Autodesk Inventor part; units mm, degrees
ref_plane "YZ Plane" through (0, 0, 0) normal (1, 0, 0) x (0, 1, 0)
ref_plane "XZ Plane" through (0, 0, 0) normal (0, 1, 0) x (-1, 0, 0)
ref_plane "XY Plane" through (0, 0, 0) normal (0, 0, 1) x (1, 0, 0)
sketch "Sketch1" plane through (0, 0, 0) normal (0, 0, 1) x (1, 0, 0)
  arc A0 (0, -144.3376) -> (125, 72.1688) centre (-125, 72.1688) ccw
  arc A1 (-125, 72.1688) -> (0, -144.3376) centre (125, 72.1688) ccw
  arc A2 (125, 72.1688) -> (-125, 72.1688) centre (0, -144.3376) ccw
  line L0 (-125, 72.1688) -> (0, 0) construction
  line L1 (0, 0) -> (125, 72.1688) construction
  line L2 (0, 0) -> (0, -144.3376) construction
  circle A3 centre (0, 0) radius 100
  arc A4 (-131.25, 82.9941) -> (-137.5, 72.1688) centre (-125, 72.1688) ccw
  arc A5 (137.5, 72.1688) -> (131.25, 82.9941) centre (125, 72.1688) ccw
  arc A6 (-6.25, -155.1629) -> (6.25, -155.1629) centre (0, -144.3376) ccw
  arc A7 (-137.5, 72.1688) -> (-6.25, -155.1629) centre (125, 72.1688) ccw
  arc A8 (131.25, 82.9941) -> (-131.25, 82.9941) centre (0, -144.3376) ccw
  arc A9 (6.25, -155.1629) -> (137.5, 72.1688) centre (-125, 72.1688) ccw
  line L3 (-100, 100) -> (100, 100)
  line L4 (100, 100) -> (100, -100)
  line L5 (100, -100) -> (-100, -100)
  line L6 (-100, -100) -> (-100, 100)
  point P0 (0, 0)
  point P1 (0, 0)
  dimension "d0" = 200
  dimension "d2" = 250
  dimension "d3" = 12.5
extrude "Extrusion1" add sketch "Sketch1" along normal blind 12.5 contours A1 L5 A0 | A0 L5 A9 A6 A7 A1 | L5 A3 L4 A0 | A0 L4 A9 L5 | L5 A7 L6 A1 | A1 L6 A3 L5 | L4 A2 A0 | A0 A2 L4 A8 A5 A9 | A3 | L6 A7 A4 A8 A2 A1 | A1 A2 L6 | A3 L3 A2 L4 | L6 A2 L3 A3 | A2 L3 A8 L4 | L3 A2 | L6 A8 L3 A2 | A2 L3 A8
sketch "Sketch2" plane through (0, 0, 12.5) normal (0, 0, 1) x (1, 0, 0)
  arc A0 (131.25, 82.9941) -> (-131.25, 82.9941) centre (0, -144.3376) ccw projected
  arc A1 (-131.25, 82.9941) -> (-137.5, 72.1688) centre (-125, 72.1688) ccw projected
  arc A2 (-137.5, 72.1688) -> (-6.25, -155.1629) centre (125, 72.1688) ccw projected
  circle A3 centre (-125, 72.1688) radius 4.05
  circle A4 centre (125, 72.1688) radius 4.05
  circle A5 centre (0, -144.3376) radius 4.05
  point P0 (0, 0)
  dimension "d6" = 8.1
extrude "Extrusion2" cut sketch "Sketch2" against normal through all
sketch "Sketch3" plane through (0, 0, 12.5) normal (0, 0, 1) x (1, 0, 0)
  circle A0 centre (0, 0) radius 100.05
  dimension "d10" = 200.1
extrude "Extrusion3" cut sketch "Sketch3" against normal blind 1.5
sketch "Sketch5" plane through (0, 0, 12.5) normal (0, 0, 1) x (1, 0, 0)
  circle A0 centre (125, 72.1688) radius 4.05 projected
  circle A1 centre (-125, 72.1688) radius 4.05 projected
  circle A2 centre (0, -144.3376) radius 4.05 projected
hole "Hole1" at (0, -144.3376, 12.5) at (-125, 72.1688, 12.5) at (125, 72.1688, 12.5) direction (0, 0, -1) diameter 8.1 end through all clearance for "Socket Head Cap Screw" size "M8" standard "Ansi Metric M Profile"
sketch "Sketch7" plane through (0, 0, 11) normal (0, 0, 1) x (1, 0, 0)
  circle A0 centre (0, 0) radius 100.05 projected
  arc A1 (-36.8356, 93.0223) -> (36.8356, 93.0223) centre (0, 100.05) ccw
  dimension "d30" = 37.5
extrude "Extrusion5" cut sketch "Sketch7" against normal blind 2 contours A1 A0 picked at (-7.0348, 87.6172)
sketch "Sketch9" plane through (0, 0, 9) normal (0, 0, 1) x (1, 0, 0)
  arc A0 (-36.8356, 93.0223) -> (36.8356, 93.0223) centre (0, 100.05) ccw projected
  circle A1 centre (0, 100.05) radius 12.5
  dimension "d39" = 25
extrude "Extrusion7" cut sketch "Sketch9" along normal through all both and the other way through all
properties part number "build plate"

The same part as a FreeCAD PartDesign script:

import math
import FreeCAD as App
import Part
import Sketcher
Q = App.Units.Quantity

doc = App.newDocument("Part")
body = doc.addObject("PartDesign::Body", "Body")

sketch1 = body.newObject("Sketcher::SketchObject", "Sketch")
sketch1.AttachmentSupport = (doc.getObject("XY_Plane"), [""])
sketch1.MapMode = "FlatFace"
sketch1.addGeometry([
    Part.ArcOfCircle(Part.Circle(App.Vector(-125, 72, 0), App.Vector(0, 0, 1), 263), math.radians(-60), math.radians(0)),
    Part.ArcOfCircle(Part.Circle(App.Vector(125, 72, 0), App.Vector(0, 0, 1), 12), math.radians(0), math.radians(60)),
    Part.ArcOfCircle(Part.Circle(App.Vector(0, -144, 0), App.Vector(0, 0, 1), 263), math.radians(60), math.radians(120)),
    Part.ArcOfCircle(Part.Circle(App.Vector(-125, 72, 0), App.Vector(0, 0, 1), 12), math.radians(120), math.radians(180)),
    Part.ArcOfCircle(Part.Circle(App.Vector(125, 72, 0), App.Vector(0, 0, 1), 262), math.radians(180), math.radians(240)),
    Part.ArcOfCircle(Part.Circle(App.Vector(0, -144, 0), App.Vector(0, 0, 1), 12), math.radians(-120), math.radians(-60)),
], False)
sketch1.addConstraint([
    Sketcher.Constraint("Tangent", 0, 2, 1, 1),
    Sketcher.Constraint("Tangent", 1, 2, 2, 1),
    Sketcher.Constraint("Tangent", 2, 2, 3, 1),
    Sketcher.Constraint("Tangent", 3, 2, 4, 1),
    Sketcher.Constraint("Tangent", 4, 2, 5, 1),
    Sketcher.Constraint("Tangent", 5, 2, 0, 1),
    Sketcher.Constraint("Coincident", 3, 3, 0, 3),
    Sketcher.Constraint("Coincident", 4, 3, 1, 3),
    Sketcher.Constraint("Equal", 0, 2),
    Sketcher.Constraint("Equal", 1, 3),
    Sketcher.Constraint("Equal", 3, 5),
    Sketcher.Constraint("Symmetric", 0, 3, 1, 3, -2),
    Sketcher.Constraint("Radius", 1, Q("12.5 mm")),
    Sketcher.Constraint("DistanceX", 0, 3, 1, 3, Q("250 mm")),
    Sketcher.Constraint("DistanceY", -1, 1, 1, 2, Q("82.994 mm")),
])
pad1 = body.newObject("PartDesign::Pad", "Pad")
pad1.Profile = sketch1
pad1.Length = 12.5

sketch2 = body.newObject("Sketcher::SketchObject", "Sketch001")
sketch2.AttachmentSupport = (doc.getObject("XY_Plane"), [""])
sketch2.MapMode = "FlatFace"
sketch2.AttachmentOffset = App.Placement(App.Vector(0, 0, 12.5), App.Rotation())
sketch2.addGeometry([
    Part.Circle(App.Vector(-125, 72.2, 0), App.Vector(0, 0, 1), 4),
    Part.Circle(App.Vector(125, 72.2, 0), App.Vector(0, 0, 1), 4),
    Part.Circle(App.Vector(0, -144.3, 0), App.Vector(0, 0, 1), 4),
], False)
sketch2.addConstraint([
    Sketcher.Constraint("Equal", 0, 1),
    Sketcher.Constraint("Equal", 1, 2),
    Sketcher.Constraint("Symmetric", 0, 3, 1, 3, -2),
    Sketcher.Constraint("PointOnObject", 2, 3, -2),
    Sketcher.Constraint("Diameter", 0, Q("8.1 mm")),
    Sketcher.Constraint("DistanceX", 0, 3, -1, 1, Q("125 mm")),
    Sketcher.Constraint("DistanceY", -1, 1, 0, 3, Q("72.1688 mm")),
    Sketcher.Constraint("DistanceY", 2, 3, -1, 1, Q("144.3376 mm")),
])
pocket1 = body.newObject("PartDesign::Pocket", "Pocket")
pocket1.Profile = sketch2
pocket1.Type = "ThroughAll"

sketch3 = body.newObject("Sketcher::SketchObject", "Sketch002")
sketch3.AttachmentSupport = (doc.getObject("XY_Plane"), [""])
sketch3.MapMode = "FlatFace"
sketch3.AttachmentOffset = App.Placement(App.Vector(0, 0, 12.5), App.Rotation())
sketch3.addGeometry(Part.Circle(App.Vector(0, 0, 0), App.Vector(0, 0, 1), 100), False)
sketch3.addConstraint([
    Sketcher.Constraint("Coincident", 0, 3, -1, 1),
    Sketcher.Constraint("Diameter", 0, Q("200.1 mm")),
])
pocket2 = body.newObject("PartDesign::Pocket", "Pocket001")
pocket2.Profile = sketch3
pocket2.Length = 1.5

sketch4 = body.newObject("Sketcher::SketchObject", "Sketch003")
sketch4.AttachmentSupport = (doc.getObject("XY_Plane"), [""])
sketch4.MapMode = "FlatFace"
sketch4.AttachmentOffset = App.Placement(App.Vector(0, 0, 12.5), App.Rotation())
sketch4.addGeometry([
    Part.Circle(App.Vector(0, -144.3, 0), App.Vector(0, 0, 1), 4),
    Part.Circle(App.Vector(-125, 72.2, 0), App.Vector(0, 0, 1), 4),
    Part.Circle(App.Vector(125, 72.2, 0), App.Vector(0, 0, 1), 4),
], False)
sketch4.addConstraint([
    Sketcher.Constraint("Equal", 0, 1),
    Sketcher.Constraint("Equal", 1, 2),
    Sketcher.Constraint("Symmetric", 1, 3, 2, 3, -2),
    Sketcher.Constraint("PointOnObject", 0, 3, -2),
    Sketcher.Constraint("Diameter", 0, Q("8.1 mm")),
    Sketcher.Constraint("DistanceX", 1, 3, -1, 1, Q("125 mm")),
    Sketcher.Constraint("DistanceY", 0, 3, -1, 1, Q("144.3376 mm")),
    Sketcher.Constraint("DistanceY", -1, 1, 1, 3, Q("72.1688 mm")),
])
doc.recompute()
hole = body.newObject("PartDesign::Hole", "Hole")
hole.Profile = sketch4
hole.ThreadType = "None"
hole.Diameter = 8.1
hole.DepthType = "ThroughAll"

sketch5 = body.newObject("Sketcher::SketchObject", "Sketch004")
sketch5.AttachmentSupport = (doc.getObject("XY_Plane"), [""])
sketch5.MapMode = "FlatFace"
sketch5.AttachmentOffset = App.Placement(App.Vector(0, 0, 11), App.Rotation())
sketch5.addGeometry([
    Part.ArcOfCircle(Part.Circle(App.Vector(0, 100, 0), App.Vector(0, 0, 1), 37), math.radians(-169), math.radians(-11)),
    Part.ArcOfCircle(Part.Circle(App.Vector(0, 0, 0), App.Vector(0, 0, 1), 100), math.radians(68), math.radians(112)),
], False)
sketch5.addConstraint([
    Sketcher.Constraint("Coincident", 0, 1, 1, 2),
    Sketcher.Constraint("Coincident", 1, 1, 0, 2),
    Sketcher.Constraint("Coincident", 1, 3, -1, 1),
    Sketcher.Constraint("PointOnObject", 0, 3, -2),
    Sketcher.Constraint("Radius", 0, Q("37.5 mm")),
    Sketcher.Constraint("Radius", 1, Q("100.05 mm")),
    Sketcher.Constraint("DistanceY", -1, 1, 0, 3, Q("100.05 mm")),
])
pocket3 = body.newObject("PartDesign::Pocket", "Pocket002")
pocket3.Profile = sketch5
pocket3.Length = 2

sketch6 = body.newObject("Sketcher::SketchObject", "Sketch005")
sketch6.AttachmentSupport = (doc.getObject("XY_Plane"), [""])
sketch6.MapMode = "FlatFace"
sketch6.AttachmentOffset = App.Placement(App.Vector(0, 0, 9), App.Rotation())
sketch6.addGeometry(Part.Circle(App.Vector(0, 100, 0), App.Vector(0, 0, 1), 12), False)
sketch6.addConstraint([
    Sketcher.Constraint("PointOnObject", 0, 3, -2),
    Sketcher.Constraint("Diameter", 0, Q("25 mm")),
    Sketcher.Constraint("DistanceY", -1, 1, 0, 3, Q("100.05 mm")),
])
pocket4 = body.newObject("PartDesign::Pocket", "Pocket003")
pocket4.Profile = sketch6
pocket4.Type = "ThroughAll"
pocket4.Midplane = True

doc.recompute()
